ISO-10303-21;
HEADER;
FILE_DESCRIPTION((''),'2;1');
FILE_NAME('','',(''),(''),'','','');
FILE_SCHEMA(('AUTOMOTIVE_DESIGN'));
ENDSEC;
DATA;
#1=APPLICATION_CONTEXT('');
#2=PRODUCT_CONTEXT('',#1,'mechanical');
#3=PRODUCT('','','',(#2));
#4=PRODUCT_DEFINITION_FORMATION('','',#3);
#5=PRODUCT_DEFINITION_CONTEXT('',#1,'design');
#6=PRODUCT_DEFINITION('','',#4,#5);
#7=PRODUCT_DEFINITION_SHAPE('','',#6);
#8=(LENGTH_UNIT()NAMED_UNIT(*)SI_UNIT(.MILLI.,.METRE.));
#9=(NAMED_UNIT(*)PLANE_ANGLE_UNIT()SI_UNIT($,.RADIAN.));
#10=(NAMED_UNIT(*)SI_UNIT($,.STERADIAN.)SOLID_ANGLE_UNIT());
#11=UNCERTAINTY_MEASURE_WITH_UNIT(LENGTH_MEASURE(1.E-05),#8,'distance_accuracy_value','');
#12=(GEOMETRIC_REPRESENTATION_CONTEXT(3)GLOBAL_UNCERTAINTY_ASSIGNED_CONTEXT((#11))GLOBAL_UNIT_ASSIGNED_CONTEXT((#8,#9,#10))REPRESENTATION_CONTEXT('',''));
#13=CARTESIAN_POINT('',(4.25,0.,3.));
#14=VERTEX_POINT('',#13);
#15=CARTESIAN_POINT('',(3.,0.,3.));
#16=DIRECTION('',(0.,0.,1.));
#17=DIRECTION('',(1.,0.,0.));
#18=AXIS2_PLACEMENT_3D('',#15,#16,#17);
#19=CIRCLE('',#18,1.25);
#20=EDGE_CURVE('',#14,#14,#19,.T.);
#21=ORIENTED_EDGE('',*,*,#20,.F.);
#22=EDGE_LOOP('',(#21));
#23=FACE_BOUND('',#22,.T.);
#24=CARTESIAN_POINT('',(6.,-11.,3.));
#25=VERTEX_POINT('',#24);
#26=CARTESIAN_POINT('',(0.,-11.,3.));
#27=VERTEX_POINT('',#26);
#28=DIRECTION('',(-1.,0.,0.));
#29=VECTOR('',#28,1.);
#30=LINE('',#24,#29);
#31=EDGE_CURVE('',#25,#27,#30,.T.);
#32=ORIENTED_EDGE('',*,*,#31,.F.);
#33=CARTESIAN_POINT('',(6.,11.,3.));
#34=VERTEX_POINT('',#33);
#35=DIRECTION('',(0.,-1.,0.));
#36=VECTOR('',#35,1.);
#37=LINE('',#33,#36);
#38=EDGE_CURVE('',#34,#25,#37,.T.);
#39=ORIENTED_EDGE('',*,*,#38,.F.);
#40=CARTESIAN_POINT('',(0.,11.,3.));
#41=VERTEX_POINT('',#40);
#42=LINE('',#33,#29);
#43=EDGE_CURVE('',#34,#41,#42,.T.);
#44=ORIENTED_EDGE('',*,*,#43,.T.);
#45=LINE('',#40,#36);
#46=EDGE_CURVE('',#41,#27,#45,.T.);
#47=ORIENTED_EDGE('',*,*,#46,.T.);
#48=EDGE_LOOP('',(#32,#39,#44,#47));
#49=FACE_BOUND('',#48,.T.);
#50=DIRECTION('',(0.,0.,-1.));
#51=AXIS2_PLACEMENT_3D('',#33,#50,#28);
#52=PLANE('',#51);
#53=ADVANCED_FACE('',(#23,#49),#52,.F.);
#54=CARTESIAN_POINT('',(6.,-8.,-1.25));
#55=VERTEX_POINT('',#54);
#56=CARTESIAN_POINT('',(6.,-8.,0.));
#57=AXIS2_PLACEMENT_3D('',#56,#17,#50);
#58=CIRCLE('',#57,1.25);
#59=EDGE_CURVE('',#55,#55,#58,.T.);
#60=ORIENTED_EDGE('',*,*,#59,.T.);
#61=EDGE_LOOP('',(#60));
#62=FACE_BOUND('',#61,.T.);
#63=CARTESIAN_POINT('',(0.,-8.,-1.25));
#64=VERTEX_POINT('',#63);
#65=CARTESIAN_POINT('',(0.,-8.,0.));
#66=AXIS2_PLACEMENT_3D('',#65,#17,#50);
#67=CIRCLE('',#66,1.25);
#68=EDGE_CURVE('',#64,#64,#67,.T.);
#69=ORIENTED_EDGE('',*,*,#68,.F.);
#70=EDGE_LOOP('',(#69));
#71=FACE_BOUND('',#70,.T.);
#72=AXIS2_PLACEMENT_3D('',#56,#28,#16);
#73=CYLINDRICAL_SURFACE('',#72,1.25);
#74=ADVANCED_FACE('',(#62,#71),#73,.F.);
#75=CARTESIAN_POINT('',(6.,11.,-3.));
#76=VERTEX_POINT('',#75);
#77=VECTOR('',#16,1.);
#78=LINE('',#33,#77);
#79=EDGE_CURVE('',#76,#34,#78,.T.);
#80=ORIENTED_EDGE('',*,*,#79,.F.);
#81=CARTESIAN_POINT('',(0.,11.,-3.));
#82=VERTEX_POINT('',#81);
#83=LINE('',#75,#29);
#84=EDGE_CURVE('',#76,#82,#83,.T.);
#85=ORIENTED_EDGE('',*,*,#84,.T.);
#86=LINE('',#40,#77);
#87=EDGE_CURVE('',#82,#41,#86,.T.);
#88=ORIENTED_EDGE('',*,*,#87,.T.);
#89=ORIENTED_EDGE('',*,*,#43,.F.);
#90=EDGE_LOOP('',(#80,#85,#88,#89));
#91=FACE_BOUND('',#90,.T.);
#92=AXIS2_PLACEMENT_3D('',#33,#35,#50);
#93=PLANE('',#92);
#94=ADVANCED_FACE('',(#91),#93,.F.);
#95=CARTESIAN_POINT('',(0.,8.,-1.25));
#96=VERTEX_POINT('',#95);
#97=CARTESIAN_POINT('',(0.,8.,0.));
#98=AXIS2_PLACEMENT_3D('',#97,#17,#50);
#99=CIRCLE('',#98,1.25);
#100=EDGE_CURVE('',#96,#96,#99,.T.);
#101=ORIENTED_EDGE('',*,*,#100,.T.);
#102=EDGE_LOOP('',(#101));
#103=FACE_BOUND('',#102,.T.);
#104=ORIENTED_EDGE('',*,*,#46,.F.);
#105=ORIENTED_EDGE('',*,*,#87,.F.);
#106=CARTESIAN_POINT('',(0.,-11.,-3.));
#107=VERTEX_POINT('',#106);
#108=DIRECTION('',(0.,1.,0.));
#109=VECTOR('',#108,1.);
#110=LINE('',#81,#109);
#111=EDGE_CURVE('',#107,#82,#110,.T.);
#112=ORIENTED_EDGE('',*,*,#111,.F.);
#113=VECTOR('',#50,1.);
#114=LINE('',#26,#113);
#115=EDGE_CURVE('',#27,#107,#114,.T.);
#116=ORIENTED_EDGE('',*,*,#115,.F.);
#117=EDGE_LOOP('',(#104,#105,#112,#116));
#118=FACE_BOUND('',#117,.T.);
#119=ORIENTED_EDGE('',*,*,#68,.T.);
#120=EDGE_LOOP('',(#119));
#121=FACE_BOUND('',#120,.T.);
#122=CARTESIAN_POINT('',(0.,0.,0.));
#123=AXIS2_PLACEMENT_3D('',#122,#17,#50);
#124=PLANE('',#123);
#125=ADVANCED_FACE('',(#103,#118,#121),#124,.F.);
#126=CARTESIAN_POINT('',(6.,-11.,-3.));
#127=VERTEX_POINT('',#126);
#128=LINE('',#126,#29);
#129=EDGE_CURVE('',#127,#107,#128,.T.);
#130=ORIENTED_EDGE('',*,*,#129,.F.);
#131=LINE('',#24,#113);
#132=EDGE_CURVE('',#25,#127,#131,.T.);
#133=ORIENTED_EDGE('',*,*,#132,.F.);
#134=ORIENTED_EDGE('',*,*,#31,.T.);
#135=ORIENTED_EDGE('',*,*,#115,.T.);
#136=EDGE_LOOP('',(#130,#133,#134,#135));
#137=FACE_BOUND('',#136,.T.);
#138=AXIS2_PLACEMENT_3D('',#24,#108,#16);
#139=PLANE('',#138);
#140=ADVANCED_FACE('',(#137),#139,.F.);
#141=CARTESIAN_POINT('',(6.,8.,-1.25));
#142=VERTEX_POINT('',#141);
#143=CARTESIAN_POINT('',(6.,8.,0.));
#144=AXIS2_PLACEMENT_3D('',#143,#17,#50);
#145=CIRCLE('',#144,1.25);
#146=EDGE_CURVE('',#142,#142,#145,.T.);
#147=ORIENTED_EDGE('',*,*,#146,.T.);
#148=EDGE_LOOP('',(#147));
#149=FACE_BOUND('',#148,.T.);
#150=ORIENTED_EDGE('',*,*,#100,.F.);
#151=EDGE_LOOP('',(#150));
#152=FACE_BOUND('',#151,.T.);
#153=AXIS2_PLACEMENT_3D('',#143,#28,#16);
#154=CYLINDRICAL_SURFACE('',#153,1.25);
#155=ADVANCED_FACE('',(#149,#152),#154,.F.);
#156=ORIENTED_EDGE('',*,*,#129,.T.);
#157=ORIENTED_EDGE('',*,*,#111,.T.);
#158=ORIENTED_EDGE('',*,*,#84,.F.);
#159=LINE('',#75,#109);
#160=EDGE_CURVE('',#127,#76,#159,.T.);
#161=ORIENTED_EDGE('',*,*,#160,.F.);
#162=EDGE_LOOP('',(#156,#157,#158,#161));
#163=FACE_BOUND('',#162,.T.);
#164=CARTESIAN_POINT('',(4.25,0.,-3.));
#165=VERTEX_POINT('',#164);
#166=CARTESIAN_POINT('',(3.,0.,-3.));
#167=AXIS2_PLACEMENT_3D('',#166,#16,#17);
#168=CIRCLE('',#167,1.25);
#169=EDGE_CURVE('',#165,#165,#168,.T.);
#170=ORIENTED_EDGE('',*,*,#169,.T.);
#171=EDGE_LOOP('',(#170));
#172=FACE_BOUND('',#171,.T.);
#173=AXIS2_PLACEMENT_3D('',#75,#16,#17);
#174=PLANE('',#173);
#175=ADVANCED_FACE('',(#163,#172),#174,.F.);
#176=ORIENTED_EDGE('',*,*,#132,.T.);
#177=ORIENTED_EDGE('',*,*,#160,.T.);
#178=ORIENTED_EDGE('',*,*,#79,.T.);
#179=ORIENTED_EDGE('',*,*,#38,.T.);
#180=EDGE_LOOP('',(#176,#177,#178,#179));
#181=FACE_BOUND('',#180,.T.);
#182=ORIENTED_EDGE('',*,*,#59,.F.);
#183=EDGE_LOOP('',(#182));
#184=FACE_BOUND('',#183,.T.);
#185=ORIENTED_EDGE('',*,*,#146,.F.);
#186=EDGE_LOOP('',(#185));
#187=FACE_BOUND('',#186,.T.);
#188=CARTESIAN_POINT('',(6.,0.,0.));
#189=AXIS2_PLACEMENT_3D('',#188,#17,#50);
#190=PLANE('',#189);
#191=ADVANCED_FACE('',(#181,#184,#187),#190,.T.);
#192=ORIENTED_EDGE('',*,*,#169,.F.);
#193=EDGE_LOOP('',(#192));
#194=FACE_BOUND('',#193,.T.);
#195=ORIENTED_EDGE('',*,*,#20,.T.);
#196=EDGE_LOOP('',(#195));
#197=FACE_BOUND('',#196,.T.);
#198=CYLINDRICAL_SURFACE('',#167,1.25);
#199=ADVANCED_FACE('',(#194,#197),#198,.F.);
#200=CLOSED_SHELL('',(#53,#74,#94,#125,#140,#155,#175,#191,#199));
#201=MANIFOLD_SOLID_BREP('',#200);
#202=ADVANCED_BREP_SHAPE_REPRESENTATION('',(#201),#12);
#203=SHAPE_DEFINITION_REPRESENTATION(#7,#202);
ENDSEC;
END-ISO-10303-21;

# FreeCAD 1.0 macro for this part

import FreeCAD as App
import Part
import Sketcher

V = App.Vector


def add_polygon(sketch, points):
    """Adds a closed chain of lines whose ends are joined by coincident constraints."""
    first, n = sketch.GeometryCount, len(points)
    for a, b in zip(points, points[1:] + points[:1]):
        sketch.addGeometry(Part.LineSegment(App.Vector(*a, 0), App.Vector(*b, 0)), False)
    for i in range(n):
        sketch.addConstraint(Sketcher.Constraint("Coincident", first + i, 2, first + (i + 1) % n, 1))

doc = App.newDocument("Part")
body = doc.addObject("PartDesign::Body", "Body")

# Sketch on YZ plane
sketch1 = body.newObject("Sketcher::SketchObject", "Sketch")
sketch1.AttachmentSupport = (doc.getObject("YZ_Plane"), [""])
sketch1.MapMode = "FlatFace"
add_polygon(sketch1, [(11, 3), (-11, 3), (-11, -3), (11, -3)])  # lines 0-3
sketch1.addGeometry(Part.Circle(V(-8, 0, 0), V(0, 0, 1), 1.2), False)  # 4
sketch1.addGeometry(Part.Circle(V(8, 0, 0), V(0, 0, 1), 1.2), False)  # 5
sketch1.addConstraint(Sketcher.Constraint("Horizontal", 0))
sketch1.addConstraint(Sketcher.Constraint("Vertical", 1))
sketch1.addConstraint(Sketcher.Constraint("Horizontal", 2))
sketch1.addConstraint(Sketcher.Constraint("Vertical", 3))
sketch1.addConstraint(Sketcher.Constraint("Equal", 4, 5))
sketch1.addConstraint(Sketcher.Constraint("Symmetric", 4, 3, 5, 3, -1, 1))
sketch1.addConstraint(Sketcher.Constraint("Symmetric", 0, 2, 2, 2, -1, 1))
sketch1.addConstraint(Sketcher.Constraint("PointOnObject", 4, 3, -1))
sketch1.addConstraint(Sketcher.Constraint("Diameter", 4, 2.5))
sketch1.addConstraint(Sketcher.Constraint("DistanceX", 0, 2, 0, 1, 22.0))
sketch1.addConstraint(Sketcher.Constraint("DistanceY", 1, 2, 1, 1, 6.0))
sketch1.addConstraint(Sketcher.Constraint("DistanceX", 4, 3, -1, 1, 8.0))
pad1 = body.newObject("PartDesign::Pad", "Pad")
pad1.Profile = sketch1
pad1.Length = 6

# Sketch on XY plane
sketch2 = body.newObject("Sketcher::SketchObject", "Sketch001")
sketch2.AttachmentSupport = (doc.getObject("XY_Plane"), [""])
sketch2.MapMode = "FlatFace"
sketch2.AttachmentOffset = App.Placement(V(0, 0, 3), App.Rotation())
sketch2.addGeometry(Part.Circle(V(3, 0, 0), V(0, 0, 1), 1.2), False)
sketch2.addConstraint(Sketcher.Constraint("PointOnObject", 0, 3, -1))
sketch2.addConstraint(Sketcher.Constraint("Diameter", 0, 2.5))
sketch2.addConstraint(Sketcher.Constraint("DistanceX", -1, 1, 0, 3, 3.0))
pocket1 = body.newObject("PartDesign::Pocket", "Pocket")
pocket1.Profile = sketch2
pocket1.Type = "ThroughAll"

doc.recompute()
